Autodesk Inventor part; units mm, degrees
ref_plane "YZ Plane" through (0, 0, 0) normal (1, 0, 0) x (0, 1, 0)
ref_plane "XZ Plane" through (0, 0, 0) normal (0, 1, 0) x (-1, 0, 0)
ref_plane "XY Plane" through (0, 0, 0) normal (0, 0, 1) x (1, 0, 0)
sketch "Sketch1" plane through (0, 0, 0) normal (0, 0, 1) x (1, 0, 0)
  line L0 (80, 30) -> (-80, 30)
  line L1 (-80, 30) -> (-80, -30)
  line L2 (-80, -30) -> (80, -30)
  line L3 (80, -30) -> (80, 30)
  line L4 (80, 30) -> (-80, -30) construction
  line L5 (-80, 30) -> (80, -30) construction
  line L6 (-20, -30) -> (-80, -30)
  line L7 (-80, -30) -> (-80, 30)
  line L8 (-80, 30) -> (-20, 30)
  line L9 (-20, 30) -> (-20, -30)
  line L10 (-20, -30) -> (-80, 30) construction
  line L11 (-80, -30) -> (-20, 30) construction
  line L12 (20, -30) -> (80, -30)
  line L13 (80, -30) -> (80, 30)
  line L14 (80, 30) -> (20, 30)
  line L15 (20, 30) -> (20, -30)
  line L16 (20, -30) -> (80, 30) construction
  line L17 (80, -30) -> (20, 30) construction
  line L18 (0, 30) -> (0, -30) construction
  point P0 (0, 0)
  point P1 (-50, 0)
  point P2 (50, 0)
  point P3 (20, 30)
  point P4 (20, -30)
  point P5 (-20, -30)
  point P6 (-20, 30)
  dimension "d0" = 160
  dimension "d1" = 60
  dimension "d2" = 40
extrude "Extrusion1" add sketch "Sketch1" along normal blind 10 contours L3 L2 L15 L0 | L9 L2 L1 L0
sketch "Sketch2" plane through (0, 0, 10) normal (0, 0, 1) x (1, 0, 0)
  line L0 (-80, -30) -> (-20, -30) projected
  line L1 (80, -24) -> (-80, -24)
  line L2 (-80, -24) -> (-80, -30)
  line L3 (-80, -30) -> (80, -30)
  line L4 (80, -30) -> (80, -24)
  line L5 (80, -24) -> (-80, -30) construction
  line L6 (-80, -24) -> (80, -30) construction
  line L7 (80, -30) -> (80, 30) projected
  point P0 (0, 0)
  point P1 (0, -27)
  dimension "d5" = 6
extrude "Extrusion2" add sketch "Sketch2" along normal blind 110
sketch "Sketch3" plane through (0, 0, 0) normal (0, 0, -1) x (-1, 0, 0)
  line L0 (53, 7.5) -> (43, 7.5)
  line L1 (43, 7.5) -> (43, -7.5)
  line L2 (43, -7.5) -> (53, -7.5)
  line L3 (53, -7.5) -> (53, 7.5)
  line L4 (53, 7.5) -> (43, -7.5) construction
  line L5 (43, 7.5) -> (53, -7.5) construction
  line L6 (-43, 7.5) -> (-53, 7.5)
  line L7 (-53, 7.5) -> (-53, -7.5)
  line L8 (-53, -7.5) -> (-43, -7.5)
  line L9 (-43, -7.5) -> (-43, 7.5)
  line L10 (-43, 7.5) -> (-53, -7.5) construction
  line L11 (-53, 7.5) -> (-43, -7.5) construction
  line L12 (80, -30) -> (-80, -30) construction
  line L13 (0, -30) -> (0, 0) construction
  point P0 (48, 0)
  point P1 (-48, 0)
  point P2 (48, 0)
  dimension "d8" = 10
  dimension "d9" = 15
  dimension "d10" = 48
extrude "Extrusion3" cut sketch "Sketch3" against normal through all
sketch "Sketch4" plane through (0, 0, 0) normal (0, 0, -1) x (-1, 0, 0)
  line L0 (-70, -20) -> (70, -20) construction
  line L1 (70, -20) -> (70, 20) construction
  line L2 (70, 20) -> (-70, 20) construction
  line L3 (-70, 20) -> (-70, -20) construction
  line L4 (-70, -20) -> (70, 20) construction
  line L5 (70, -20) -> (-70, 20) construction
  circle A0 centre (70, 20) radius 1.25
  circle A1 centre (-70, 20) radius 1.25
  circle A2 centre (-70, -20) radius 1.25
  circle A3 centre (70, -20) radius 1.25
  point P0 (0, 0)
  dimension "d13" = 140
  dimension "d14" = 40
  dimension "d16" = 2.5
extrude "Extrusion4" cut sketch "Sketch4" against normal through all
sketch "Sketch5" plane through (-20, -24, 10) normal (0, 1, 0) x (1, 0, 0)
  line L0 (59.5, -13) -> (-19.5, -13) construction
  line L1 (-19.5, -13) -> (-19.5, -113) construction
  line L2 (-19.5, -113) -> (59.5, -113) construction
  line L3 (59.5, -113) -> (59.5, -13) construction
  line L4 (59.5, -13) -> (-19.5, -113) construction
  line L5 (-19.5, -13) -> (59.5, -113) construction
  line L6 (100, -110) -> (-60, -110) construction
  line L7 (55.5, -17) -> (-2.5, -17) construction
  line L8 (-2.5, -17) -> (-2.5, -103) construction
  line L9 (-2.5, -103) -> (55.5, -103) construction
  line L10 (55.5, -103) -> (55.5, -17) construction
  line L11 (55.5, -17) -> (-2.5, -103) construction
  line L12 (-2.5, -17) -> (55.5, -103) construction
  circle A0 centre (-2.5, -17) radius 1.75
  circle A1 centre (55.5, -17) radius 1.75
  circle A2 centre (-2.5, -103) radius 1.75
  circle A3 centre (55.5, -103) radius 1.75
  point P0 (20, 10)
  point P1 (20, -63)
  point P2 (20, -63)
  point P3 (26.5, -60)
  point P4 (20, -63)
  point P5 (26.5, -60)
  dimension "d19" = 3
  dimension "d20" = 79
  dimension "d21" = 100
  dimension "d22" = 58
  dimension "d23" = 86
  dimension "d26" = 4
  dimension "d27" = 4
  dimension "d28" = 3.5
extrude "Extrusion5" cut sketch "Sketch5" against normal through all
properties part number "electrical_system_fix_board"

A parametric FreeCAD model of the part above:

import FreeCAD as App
import Part
import Sketcher
Q = App.Units.Quantity

doc = App.newDocument("Part")
body = doc.addObject("PartDesign::Body", "Body")
body.AllowCompound = True

# Sketch on XY plane
sketch1 = doc.addObject("Sketcher::SketchObject", "Sketch")
body.addObject(sketch1)
sketch1.AttachmentSupport = (doc.XY_Plane, [""])
sketch1.MapMode = "FlatFace"
sketch1.addGeometry([
    Part.LineSegment(App.Vector(80, -30, 0), App.Vector(80, 30, 0)),  # 0
    Part.LineSegment(App.Vector(80, 30, 0), App.Vector(20, 30, 0)),  # 1
    Part.LineSegment(App.Vector(20, 30, 0), App.Vector(20, -30, 0)),  # 2
    Part.LineSegment(App.Vector(20, -30, 0), App.Vector(80, -30, 0)),  # 3
    Part.LineSegment(App.Vector(-20, -30, 0), App.Vector(-20, 30, 0)),  # 4
    Part.LineSegment(App.Vector(-20, 30, 0), App.Vector(-80, 30, 0)),  # 5
    Part.LineSegment(App.Vector(-80, 30, 0), App.Vector(-80, -30, 0)),  # 6
    Part.LineSegment(App.Vector(-80, -30, 0), App.Vector(-20, -30, 0)),  # 7
], False)
sketch1.addConstraint([
    Sketcher.Constraint("Coincident", 0, 2, 1, 1),
    Sketcher.Constraint("Coincident", 1, 2, 2, 1),
    Sketcher.Constraint("Coincident", 2, 2, 3, 1),
    Sketcher.Constraint("Coincident", 3, 2, 0, 1),
    Sketcher.Constraint("Coincident", 4, 2, 5, 1),
    Sketcher.Constraint("Coincident", 5, 2, 6, 1),
    Sketcher.Constraint("Coincident", 6, 2, 7, 1),
    Sketcher.Constraint("Coincident", 7, 2, 4, 1),
    Sketcher.Constraint("Vertical", 0),
    Sketcher.Constraint("Horizontal", 1),
    Sketcher.Constraint("Vertical", 2),
    Sketcher.Constraint("Horizontal", 3),
    Sketcher.Constraint("Vertical", 4),
    Sketcher.Constraint("Horizontal", 5),
    Sketcher.Constraint("Vertical", 6),
    Sketcher.Constraint("Horizontal", 7),
    Sketcher.Constraint("Symmetric", 2, 2, 4, 2, -1, 1),
    Sketcher.Constraint("Symmetric", 0, 2, 6, 2, -1, 1),
    Sketcher.Constraint("Horizontal", 1, 2, 4, 2),
    Sketcher.Constraint("Equal", 7, 0),
    Sketcher.Constraint("DistanceX", 1, 2, 1, 1, Q("60 mm")),
    Sketcher.Constraint("DistanceX", 4, 2, 1, 2, Q("40 mm")),
])
pad1 = doc.addObject("PartDesign::Pad", "Pad")
body.addObject(pad1)
pad1.Profile = sketch1
pad1.Length = 10

# Sketch on XY plane
sketch2 = doc.addObject("Sketcher::SketchObject", "Sketch001")
body.addObject(sketch2)
sketch2.AttachmentSupport = (doc.XY_Plane, [""])
sketch2.MapMode = "FlatFace"
sketch2.AttachmentOffset = App.Placement(App.Vector(0, 0, 10), App.Rotation())
sketch2.addGeometry([
    Part.LineSegment(App.Vector(-80, -24, 0), App.Vector(-80, -30, 0)),
    Part.LineSegment(App.Vector(-80, -30, 0), App.Vector(80, -30, 0)),
    Part.LineSegment(App.Vector(80, -30, 0), App.Vector(80, -24, 0)),
    Part.LineSegment(App.Vector(80, -24, 0), App.Vector(-80, -24, 0)),
], False)
sketch2.addConstraint([
    Sketcher.Constraint("Coincident", 0, 2, 1, 1),
    Sketcher.Constraint("Coincident", 1, 2, 2, 1),
    Sketcher.Constraint("Coincident", 2, 2, 3, 1),
    Sketcher.Constraint("Coincident", 3, 2, 0, 1),
    Sketcher.Constraint("Vertical", 0),
    Sketcher.Constraint("Horizontal", 1),
    Sketcher.Constraint("Vertical", 2),
    Sketcher.Constraint("Horizontal", 3),
    Sketcher.Constraint("DistanceY", 0, 2, 0, 1, Q("6 mm")),
    Sketcher.Constraint("DistanceX", 1, 1, 1, 2, Q("160 mm")),
    Sketcher.Constraint("DistanceX", 0, 2, -1, 1, Q("80 mm")),
    Sketcher.Constraint("DistanceY", 0, 2, -1, 1, Q("30 mm")),
])
pad2 = doc.addObject("PartDesign::Pad", "Pad001")
body.addObject(pad2)
pad2.Profile = sketch2
pad2.Length = 110

# Sketch on XY plane
sketch3 = doc.addObject("Sketcher::SketchObject", "Sketch002")
body.addObject(sketch3)
sketch3.AttachmentSupport = (doc.XY_Plane, [""])
sketch3.MapMode = "FlatFace"
sketch3.addGeometry([
    Part.LineSegment(App.Vector(-53, -8, 0), App.Vector(-53, 8, 0)),  # 0
    Part.LineSegment(App.Vector(-53, 8, 0), App.Vector(-43, 8, 0)),  # 1
    Part.LineSegment(App.Vector(-43, 8, 0), App.Vector(-43, -8, 0)),  # 2
    Part.LineSegment(App.Vector(-43, -8, 0), App.Vector(-53, -8, 0)),  # 3
    Part.LineSegment(App.Vector(43, -8, 0), App.Vector(43, 8, 0)),  # 4
    Part.LineSegment(App.Vector(43, 8, 0), App.Vector(53, 8, 0)),  # 5
    Part.LineSegment(App.Vector(53, 8, 0), App.Vector(53, -8, 0)),  # 6
    Part.LineSegment(App.Vector(53, -8, 0), App.Vector(43, -8, 0)),  # 7
], False)
sketch3.addConstraint([
    Sketcher.Constraint("Coincident", 0, 2, 1, 1),
    Sketcher.Constraint("Coincident", 1, 2, 2, 1),
    Sketcher.Constraint("Coincident", 2, 2, 3, 1),
    Sketcher.Constraint("Coincident", 3, 2, 0, 1),
    Sketcher.Constraint("Coincident", 4, 2, 5, 1),
    Sketcher.Constraint("Coincident", 5, 2, 6, 1),
    Sketcher.Constraint("Coincident", 6, 2, 7, 1),
    Sketcher.Constraint("Coincident", 7, 2, 4, 1),
    Sketcher.Constraint("Vertical", 0),
    Sketcher.Constraint("Horizontal", 1),
    Sketcher.Constraint("Vertical", 2),
    Sketcher.Constraint("Horizontal", 3),
    Sketcher.Constraint("Vertical", 4),
    Sketcher.Constraint("Horizontal", 5),
    Sketcher.Constraint("Vertical", 6),
    Sketcher.Constraint("Horizontal", 7),
    Sketcher.Constraint("Symmetric", 2, 2, 4, 2, -1, 1),
    Sketcher.Constraint("Symmetric", 0, 2, 6, 2, -1, 1),
    Sketcher.Constraint("Horizontal", 1, 2, 4, 2),
    Sketcher.Constraint("DistanceX", 1, 1, 1, 2, Q("10 mm")),
    Sketcher.Constraint("DistanceY", 0, 1, 0, 2, Q("15 mm")),
    Sketcher.Constraint("DistanceX", 0, 2, -1, 1, Q("53 mm")),
])
pocket1 = doc.addObject("PartDesign::Pocket", "Pocket")
body.addObject(pocket1)
pocket1.Profile = sketch3
pocket1.Type = "ThroughAll"
pocket1.Reversed = True

# Sketch on XY plane
sketch4 = doc.addObject("Sketcher::SketchObject", "Sketch003")
body.addObject(sketch4)
sketch4.AttachmentSupport = (doc.XY_Plane, [""])
sketch4.MapMode = "FlatFace"
sketch4.addGeometry([
    Part.Circle(App.Vector(-70, 20, 0), App.Vector(0, 0, 1), 1.2),
    Part.Circle(App.Vector(70, 20, 0), App.Vector(0, 0, 1), 1.2),
    Part.Circle(App.Vector(70, -20, 0), App.Vector(0, 0, 1), 1.2),
    Part.Circle(App.Vector(-70, -20, 0), App.Vector(0, 0, 1), 1.2),
], False)
sketch4.addConstraint([
    Sketcher.Constraint("Equal", 0, 1),
    Sketcher.Constraint("Equal", 1, 2),
    Sketcher.Constraint("Equal", 2, 3),
    Sketcher.Constraint("Symmetric", 0, 3, 2, 3, -1, 1),
    Sketcher.Constraint("Symmetric", 1, 3, 3, 3, -1, 1),
    Sketcher.Constraint("Symmetric", 0, 3, 1, 3, -2),
    Sketcher.Constraint("Diameter", 0, Q("2.5 mm")),
    Sketcher.Constraint("DistanceX", 0, 3, 1, 3, Q("140 mm")),
    Sketcher.Constraint("DistanceY", 2, 3, 1, 3, Q("40 mm")),
])
pocket2 = doc.addObject("PartDesign::Pocket", "Pocket001")
body.addObject(pocket2)
pocket2.Profile = sketch4
pocket2.Type = "ThroughAll"
pocket2.Reversed = True

# Sketch on XZ plane
sketch5 = doc.addObject("Sketcher::SketchObject", "Sketch004")
body.addObject(sketch5)
sketch5.AttachmentSupport = (doc.XZ_Plane, [""])
sketch5.MapMode = "FlatFace"
sketch5.AttachmentOffset = App.Placement(App.Vector(0, 0, 24), App.Rotation())
sketch5.addGeometry([
    Part.Circle(App.Vector(-22.5, 27, 0), App.Vector(0, 0, 1), 1.8),
    Part.Circle(App.Vector(35.5, 27, 0), App.Vector(0, 0, 1), 1.8),
    Part.Circle(App.Vector(-22.5, 113, 0), App.Vector(0, 0, 1), 1.8),
    Part.Circle(App.Vector(35.5, 113, 0), App.Vector(0, 0, 1), 1.8),
], False)
sketch5.addConstraint([
    Sketcher.Constraint("Equal", 0, 1),
    Sketcher.Constraint("Equal", 1, 2),
    Sketcher.Constraint("Equal", 2, 3),
    Sketcher.Constraint("Horizontal", 0, 3, 1, 3),
    Sketcher.Constraint("Horizontal", 2, 3, 3, 3),
    Sketcher.Constraint("Vertical", 0, 3, 2, 3),
    Sketcher.Constraint("Vertical", 1, 3, 3, 3),
    Sketcher.Constraint("Diameter", 0, Q("3.5 mm")),
    Sketcher.Constraint("DistanceX", 0, 3, 1, 3, Q("58 mm")),
    Sketcher.Constraint("DistanceY", 0, 3, 2, 3, Q("86 mm")),
    Sketcher.Constraint("DistanceY", -1, 1, 0, 3, Q("27 mm")),
    Sketcher.Constraint("DistanceX", 0, 3, -1, 1, Q("22.5 mm")),
])
pocket3 = doc.addObject("PartDesign::Pocket", "Pocket002")
body.addObject(pocket3)
pocket3.Profile = sketch5
pocket3.Type = "ThroughAll"
pocket3.Reversed = True

doc.recompute()
